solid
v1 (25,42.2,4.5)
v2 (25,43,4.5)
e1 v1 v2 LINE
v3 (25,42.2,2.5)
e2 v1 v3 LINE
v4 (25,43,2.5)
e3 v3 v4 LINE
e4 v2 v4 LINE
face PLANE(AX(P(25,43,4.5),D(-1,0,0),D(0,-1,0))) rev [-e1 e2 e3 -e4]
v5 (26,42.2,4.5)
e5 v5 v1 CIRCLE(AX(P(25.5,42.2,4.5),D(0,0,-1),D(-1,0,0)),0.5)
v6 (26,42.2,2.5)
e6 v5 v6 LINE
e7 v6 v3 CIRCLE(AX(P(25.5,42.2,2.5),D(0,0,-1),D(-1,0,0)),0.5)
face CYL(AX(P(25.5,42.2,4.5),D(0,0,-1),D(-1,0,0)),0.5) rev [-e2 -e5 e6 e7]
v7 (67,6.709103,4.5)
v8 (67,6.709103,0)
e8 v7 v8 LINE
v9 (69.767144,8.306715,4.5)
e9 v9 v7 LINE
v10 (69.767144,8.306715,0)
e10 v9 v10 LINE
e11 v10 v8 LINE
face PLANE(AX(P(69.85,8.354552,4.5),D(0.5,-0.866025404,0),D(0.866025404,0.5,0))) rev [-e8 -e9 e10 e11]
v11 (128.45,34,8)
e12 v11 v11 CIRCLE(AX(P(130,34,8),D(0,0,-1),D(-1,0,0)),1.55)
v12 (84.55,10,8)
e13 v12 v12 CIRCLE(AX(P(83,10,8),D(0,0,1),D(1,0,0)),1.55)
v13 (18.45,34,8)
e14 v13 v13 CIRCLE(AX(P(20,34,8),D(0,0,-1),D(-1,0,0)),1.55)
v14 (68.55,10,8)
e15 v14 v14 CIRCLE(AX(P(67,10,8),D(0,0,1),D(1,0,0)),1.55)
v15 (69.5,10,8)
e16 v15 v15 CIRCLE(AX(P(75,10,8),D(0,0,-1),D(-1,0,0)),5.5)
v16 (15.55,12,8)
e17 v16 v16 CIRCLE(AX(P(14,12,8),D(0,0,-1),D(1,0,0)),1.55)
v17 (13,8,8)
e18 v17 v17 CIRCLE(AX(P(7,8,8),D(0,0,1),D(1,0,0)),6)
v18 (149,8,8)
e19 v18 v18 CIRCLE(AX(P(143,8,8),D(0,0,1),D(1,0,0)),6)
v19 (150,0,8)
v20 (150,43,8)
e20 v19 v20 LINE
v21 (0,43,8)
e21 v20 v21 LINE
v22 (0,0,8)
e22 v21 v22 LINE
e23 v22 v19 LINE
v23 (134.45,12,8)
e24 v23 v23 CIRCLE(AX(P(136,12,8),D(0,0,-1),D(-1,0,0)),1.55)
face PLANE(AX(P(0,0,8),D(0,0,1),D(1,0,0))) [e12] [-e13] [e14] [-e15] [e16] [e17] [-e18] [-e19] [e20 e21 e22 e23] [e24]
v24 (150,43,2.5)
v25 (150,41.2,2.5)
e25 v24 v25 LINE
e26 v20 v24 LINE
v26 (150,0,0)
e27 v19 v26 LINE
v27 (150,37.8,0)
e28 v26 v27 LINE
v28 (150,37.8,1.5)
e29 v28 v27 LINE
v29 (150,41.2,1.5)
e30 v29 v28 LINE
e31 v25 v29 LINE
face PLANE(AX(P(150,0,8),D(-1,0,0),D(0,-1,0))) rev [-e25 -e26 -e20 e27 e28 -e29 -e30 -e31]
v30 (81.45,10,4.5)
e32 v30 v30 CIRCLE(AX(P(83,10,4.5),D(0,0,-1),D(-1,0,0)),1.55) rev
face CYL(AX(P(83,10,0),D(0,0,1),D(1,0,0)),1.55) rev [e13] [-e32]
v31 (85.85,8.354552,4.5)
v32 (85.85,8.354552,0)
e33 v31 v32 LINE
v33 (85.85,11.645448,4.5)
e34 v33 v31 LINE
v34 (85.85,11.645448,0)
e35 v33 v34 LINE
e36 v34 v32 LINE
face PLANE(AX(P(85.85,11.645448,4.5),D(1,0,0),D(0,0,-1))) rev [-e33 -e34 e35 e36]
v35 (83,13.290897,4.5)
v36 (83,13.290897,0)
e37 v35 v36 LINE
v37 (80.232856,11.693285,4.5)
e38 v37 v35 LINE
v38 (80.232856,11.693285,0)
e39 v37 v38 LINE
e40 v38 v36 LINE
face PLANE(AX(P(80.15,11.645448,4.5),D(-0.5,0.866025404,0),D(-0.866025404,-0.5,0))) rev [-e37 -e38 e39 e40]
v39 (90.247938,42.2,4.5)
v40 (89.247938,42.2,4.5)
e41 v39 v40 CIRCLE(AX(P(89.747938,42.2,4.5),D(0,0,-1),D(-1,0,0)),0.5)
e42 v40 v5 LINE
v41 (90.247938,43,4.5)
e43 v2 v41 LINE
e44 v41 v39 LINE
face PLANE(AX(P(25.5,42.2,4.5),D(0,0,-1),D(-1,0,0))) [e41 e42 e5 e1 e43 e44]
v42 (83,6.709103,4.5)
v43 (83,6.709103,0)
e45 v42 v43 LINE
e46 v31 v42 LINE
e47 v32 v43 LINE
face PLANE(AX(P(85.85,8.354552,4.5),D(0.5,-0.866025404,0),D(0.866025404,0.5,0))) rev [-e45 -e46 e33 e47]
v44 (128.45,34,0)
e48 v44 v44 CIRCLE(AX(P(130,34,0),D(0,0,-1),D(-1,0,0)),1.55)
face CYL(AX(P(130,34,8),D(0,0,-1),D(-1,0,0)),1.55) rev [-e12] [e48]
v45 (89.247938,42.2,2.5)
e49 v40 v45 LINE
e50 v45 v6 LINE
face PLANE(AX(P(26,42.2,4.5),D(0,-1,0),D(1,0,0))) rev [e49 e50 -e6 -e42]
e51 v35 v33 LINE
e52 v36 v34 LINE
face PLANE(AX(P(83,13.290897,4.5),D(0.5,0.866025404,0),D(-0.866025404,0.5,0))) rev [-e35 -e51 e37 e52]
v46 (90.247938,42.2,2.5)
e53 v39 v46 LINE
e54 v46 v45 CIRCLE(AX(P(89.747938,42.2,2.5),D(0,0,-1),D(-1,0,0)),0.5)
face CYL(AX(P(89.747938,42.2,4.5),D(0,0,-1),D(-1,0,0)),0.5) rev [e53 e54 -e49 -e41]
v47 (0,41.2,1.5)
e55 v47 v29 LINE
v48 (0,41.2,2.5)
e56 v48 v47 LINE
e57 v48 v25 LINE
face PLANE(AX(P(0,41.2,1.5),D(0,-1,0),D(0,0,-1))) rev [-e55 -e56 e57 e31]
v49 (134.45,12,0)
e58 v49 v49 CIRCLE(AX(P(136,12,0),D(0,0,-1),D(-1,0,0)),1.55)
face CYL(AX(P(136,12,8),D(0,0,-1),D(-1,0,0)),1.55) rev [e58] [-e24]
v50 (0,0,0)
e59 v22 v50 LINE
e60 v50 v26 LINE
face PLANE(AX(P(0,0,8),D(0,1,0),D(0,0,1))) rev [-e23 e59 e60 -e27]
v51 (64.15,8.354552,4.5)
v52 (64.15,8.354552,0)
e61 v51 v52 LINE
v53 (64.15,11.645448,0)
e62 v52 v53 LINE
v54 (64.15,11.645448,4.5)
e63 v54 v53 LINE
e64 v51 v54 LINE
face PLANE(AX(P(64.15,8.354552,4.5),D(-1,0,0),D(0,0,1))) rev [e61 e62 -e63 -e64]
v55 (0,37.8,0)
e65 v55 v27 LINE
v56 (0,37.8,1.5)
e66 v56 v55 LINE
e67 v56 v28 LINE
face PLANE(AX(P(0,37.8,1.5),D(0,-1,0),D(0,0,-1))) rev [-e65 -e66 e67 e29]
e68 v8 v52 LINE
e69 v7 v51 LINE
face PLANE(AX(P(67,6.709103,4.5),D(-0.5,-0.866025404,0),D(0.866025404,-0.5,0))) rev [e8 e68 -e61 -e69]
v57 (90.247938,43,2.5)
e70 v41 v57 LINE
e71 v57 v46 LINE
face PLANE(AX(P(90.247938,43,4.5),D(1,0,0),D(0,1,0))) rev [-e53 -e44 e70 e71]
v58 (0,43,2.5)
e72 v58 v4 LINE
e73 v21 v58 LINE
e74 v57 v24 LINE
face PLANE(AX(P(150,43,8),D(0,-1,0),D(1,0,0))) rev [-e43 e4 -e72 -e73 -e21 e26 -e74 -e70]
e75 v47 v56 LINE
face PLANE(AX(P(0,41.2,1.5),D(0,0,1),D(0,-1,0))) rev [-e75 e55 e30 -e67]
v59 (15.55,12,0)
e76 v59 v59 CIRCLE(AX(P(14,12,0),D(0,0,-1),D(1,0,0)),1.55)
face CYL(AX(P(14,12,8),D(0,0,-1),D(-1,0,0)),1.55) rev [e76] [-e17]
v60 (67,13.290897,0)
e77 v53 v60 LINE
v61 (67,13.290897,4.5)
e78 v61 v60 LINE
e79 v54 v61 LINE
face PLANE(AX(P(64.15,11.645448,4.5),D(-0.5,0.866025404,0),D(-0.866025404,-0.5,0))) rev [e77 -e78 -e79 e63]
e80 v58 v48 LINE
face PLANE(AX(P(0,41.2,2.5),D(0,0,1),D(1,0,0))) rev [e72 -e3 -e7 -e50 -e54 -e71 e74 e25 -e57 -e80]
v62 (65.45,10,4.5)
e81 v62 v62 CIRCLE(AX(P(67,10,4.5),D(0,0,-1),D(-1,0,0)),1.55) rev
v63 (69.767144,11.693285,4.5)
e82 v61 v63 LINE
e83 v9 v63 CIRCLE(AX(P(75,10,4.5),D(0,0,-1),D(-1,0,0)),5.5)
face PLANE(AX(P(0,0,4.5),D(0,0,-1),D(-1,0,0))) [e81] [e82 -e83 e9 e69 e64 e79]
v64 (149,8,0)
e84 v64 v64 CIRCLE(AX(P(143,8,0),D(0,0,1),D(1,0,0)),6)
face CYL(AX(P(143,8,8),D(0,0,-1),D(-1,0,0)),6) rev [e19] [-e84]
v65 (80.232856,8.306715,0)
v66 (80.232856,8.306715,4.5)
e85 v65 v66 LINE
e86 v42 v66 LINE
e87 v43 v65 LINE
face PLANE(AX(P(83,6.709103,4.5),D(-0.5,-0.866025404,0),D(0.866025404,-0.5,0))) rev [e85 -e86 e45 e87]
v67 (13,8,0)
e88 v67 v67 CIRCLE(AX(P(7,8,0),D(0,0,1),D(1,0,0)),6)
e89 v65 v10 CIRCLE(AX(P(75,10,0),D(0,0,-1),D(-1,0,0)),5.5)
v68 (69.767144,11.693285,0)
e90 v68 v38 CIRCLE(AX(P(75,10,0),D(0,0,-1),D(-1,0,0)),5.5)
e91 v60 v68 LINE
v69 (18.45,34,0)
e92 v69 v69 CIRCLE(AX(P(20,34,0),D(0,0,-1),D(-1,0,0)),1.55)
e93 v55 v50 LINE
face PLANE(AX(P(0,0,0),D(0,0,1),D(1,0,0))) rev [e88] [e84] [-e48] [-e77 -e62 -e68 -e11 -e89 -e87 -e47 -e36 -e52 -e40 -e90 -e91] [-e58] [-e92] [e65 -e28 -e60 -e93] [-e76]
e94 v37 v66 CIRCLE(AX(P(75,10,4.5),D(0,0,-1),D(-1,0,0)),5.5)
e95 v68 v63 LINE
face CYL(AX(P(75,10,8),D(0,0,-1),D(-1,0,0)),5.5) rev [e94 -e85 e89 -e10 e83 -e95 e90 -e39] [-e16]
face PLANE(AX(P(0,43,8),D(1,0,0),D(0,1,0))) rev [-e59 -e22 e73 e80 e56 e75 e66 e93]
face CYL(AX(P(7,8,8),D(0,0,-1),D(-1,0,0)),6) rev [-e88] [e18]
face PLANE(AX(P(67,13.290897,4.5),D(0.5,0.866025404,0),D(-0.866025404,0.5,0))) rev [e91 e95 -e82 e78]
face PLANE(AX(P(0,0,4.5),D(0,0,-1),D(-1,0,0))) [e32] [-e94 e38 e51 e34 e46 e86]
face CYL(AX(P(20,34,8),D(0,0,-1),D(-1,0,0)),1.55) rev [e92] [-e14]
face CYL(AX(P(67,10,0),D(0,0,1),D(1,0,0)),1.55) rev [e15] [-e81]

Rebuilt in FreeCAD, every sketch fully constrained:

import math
import FreeCAD as App
import Part
import Sketcher
from FreeCAD import Vector
Q = App.Units.Quantity

doc = App.newDocument("Part")
params = doc.addObject("Spreadsheet::Sheet", "Params")
for row, (alias, value) in enumerate([
    ("sketch1_diameter", "12 mm"),
    ("sketch1_diameter2", "8.1 mm"),
    ("sketch1_width", "150 mm"),
    ("sketch1_height", "43 mm"),
    ("pad1_length", "8 mm"),
    ("sketch2_height", "1 mm"),
    ("sketch2_width", "3.4 mm"),
    ("sketch2_width2", "5.2 mm"),
    ("sketch2_height2", "1.5 mm"),
    ("sketch3_diameter", "3.1 mm"),
    ("pocket3_length", "4.5 mm"),
    ("sketch5_diameter", "3.1 mm"),
    ("sketch6_radius", "0.5 mm"),
    ("sketch6_height", "0.8 mm"),
    ("pocket5_length", "2 mm"),
    ("sketch7_diameter", "3.1 mm"),
    ("sketch8_diameter", "11 mm"),
], start=1):
    params.set(f"A{row}", alias)
    params.set(f"B{row}", "=" + value)
    params.setAlias(f"B{row}", alias)

body = doc.addObject("PartDesign::Body", "Body")

# Sketch on XY plane
sketch1 = body.newObject("Sketcher::SketchObject", "Sketch")
sketch1.AttachmentSupport = (doc.getObject("XY_Plane"), [""])
sketch1.MapMode = "FlatFace"
sketch1.addGeometry(Part.LineSegment(Vector(0, 43, 0), Vector(0, 0, 0)), False)
sketch1.addGeometry(Part.LineSegment(Vector(0, 0, 0), Vector(150, 0, 0)), False)
sketch1.addGeometry(Part.LineSegment(Vector(150, 0, 0), Vector(150, 43, 0)), False)
sketch1.addGeometry(Part.LineSegment(Vector(150, 43, 0), Vector(0, 43, 0)), False)
sketch1.addGeometry(Part.Circle(Vector(7, 8, 0), Vector(0, 0, 1), 6), False)
sketch1.addGeometry(Part.Circle(Vector(143, 8, 0), Vector(0, 0, 1), 6), False)
sketch1.addGeometry(Part.Circle(Vector(75, 10, 0), Vector(0, 0, 1), 4), False)
sketch1.addConstraint(Sketcher.Constraint("Coincident", 0, 2, 1, 1))
sketch1.addConstraint(Sketcher.Constraint("Coincident", 1, 2, 2, 1))
sketch1.addConstraint(Sketcher.Constraint("Coincident", 2, 2, 3, 1))
sketch1.addConstraint(Sketcher.Constraint("Coincident", 3, 2, 0, 1))
sketch1.addConstraint(Sketcher.Constraint("Vertical", 0))
sketch1.addConstraint(Sketcher.Constraint("Horizontal", 1))
sketch1.addConstraint(Sketcher.Constraint("Vertical", 2))
sketch1.addConstraint(Sketcher.Constraint("Horizontal", 3))
sketch1.addConstraint(Sketcher.Constraint("Coincident", 0, 2, -1, 1))
sketch1.addConstraint(Sketcher.Constraint("Equal", 4, 5))
sketch1.addConstraint(Sketcher.Constraint("Horizontal", 4, 3, 5, 3))
sketch1.addConstraint(Sketcher.Constraint("Diameter", 4, Q("12 mm")))
sketch1.addConstraint(Sketcher.Constraint("Diameter", 6, Q("8.1 mm")))
sketch1.addConstraint(Sketcher.Constraint("DistanceX", 1, 1, 1, 2, Q("150 mm")))
sketch1.addConstraint(Sketcher.Constraint("DistanceY", 0, 2, 0, 1, Q("43 mm")))
sketch1.addConstraint(Sketcher.Constraint("DistanceX", -1, 1, 4, 3, Q("7 mm")))
sketch1.addConstraint(Sketcher.Constraint("DistanceY", -1, 1, 4, 3, Q("8 mm")))
sketch1.addConstraint(Sketcher.Constraint("DistanceX", -1, 1, 5, 3, Q("143 mm")))
sketch1.addConstraint(Sketcher.Constraint("DistanceX", -1, 1, 6, 3, Q("75 mm")))
sketch1.addConstraint(Sketcher.Constraint("DistanceY", -1, 1, 6, 3, Q("10 mm")))
sketch1.setExpression("Constraints[11]", "Params.sketch1_diameter")
sketch1.setExpression("Constraints[12]", "Params.sketch1_diameter2")
sketch1.setExpression("Constraints[13]", "Params.sketch1_width")
sketch1.setExpression("Constraints[14]", "Params.sketch1_height")
pad1 = body.newObject("PartDesign::Pad", "Pad")
pad1.Profile = sketch1
pad1.setExpression("Length", "Params.pad1_length")

# Sketch on YZ plane
sketch2 = body.newObject("Sketcher::SketchObject", "Sketch001")
sketch2.AttachmentSupport = (doc.getObject("YZ_Plane"), [""])
sketch2.MapMode = "FlatFace"
sketch2.AttachmentOffset = App.Placement(Vector(0, 0, 150), App.Rotation())
sketch2.addGeometry(Part.LineSegment(Vector(41.2, 2.5, 0), Vector(41.2, 1.5, 0)), False)
sketch2.addGeometry(Part.LineSegment(Vector(41.2, 1.5, 0), Vector(37.8, 1.5, 0)), False)
sketch2.addGeometry(Part.LineSegment(Vector(37.8, 1.5, 0), Vector(37.8, 0, 0)), False)
sketch2.addGeometry(Part.LineSegment(Vector(37.8, 0, 0), Vector(43, 0, 0)), False)
sketch2.addGeometry(Part.LineSegment(Vector(43, 0, 0), Vector(43, 2.5, 0)), False)
sketch2.addGeometry(Part.LineSegment(Vector(43, 2.5, 0), Vector(41.2, 2.5, 0)), False)
sketch2.addConstraint(Sketcher.Constraint("Coincident", 0, 2, 1, 1))
sketch2.addConstraint(Sketcher.Constraint("Coincident", 1, 2, 2, 1))
sketch2.addConstraint(Sketcher.Constraint("Coincident", 2, 2, 3, 1))
sketch2.addConstraint(Sketcher.Constraint("Coincident", 3, 2, 4, 1))
sketch2.addConstraint(Sketcher.Constraint("Coincident", 4, 2, 5, 1))
sketch2.addConstraint(Sketcher.Constraint("Coincident", 5, 2, 0, 1))
sketch2.addConstraint(Sketcher.Constraint("Vertical", 0))
sketch2.addConstraint(Sketcher.Constraint("Horizontal", 1))
sketch2.addConstraint(Sketcher.Constraint("Vertical", 2))
sketch2.addConstraint(Sketcher.Constraint("Horizontal", 3))
sketch2.addConstraint(Sketcher.Constraint("Vertical", 4))
sketch2.addConstraint(Sketcher.Constraint("Horizontal", 5))
sketch2.addConstraint(Sketcher.Constraint("PointOnObject", 2, 2, -1))
sketch2.addConstraint(Sketcher.Constraint("DistanceY", 0, 2, 0, 1, Q("1 mm")))
sketch2.addConstraint(Sketcher.Constraint("DistanceX", 1, 2, 1, 1, Q("3.4 mm")))
sketch2.addConstraint(Sketcher.Constraint("DistanceX", 3, 1, 3, 2, Q("5.2 mm")))
sketch2.addConstraint(Sketcher.Constraint("DistanceY", 2, 2, 2, 1, Q("1.5 mm")))
sketch2.addConstraint(Sketcher.Constraint("DistanceX", -1, 1, 3, 2, Q("43 mm")))
sketch2.setExpression("Constraints[13]", "Params.sketch2_height")
sketch2.setExpression("Constraints[14]", "Params.sketch2_width")
sketch2.setExpression("Constraints[15]", "Params.sketch2_width2")
sketch2.setExpression("Constraints[16]", "Params.sketch2_height2")
pocket1 = body.newObject("PartDesign::Pocket", "Pocket")
pocket1.Profile = sketch2
pocket1.Type = "ThroughAll"

# Sketch on XY plane
sketch3 = body.newObject("Sketcher::SketchObject", "Sketch002")
sketch3.AttachmentSupport = (doc.getObject("XY_Plane"), [""])
sketch3.MapMode = "FlatFace"
sketch3.AttachmentOffset = App.Placement(Vector(0, 0, 8), App.Rotation())
sketch3.addGeometry(Part.Circle(Vector(83, 10, 0), Vector(0, 0, 1), 1.6), False)
sketch3.addGeometry(Part.Circle(Vector(67, 10, 0), Vector(0, 0, 1), 1.6), False)
sketch3.addConstraint(Sketcher.Constraint("Equal", 0, 1))
sketch3.addConstraint(Sketcher.Constraint("Horizontal", 0, 3, 1, 3))
sketch3.addConstraint(Sketcher.Constraint("Diameter", 0, Q("3.1 mm")))
sketch3.addConstraint(Sketcher.Constraint("DistanceX", -1, 1, 0, 3, Q("83 mm")))
sketch3.addConstraint(Sketcher.Constraint("DistanceY", -1, 1, 0, 3, Q("10 mm")))
sketch3.addConstraint(Sketcher.Constraint("DistanceX", -1, 1, 1, 3, Q("67 mm")))
sketch3.setExpression("Constraints[2]", "Params.sketch3_diameter")
pocket2 = body.newObject("PartDesign::Pocket", "Pocket001")
pocket2.Profile = sketch3
pocket2.Type = "ThroughAll"

# Sketch on XY plane
sketch4 = body.newObject("Sketcher::SketchObject", "Sketch003")
sketch4.AttachmentSupport = (doc.getObject("XY_Plane"), [""])
sketch4.MapMode = "FlatFace"
sketch4.addGeometry(Part.LineSegment(Vector(80.2, 8.4, 0), Vector(80.2, 11.6, 0)), False)
sketch4.addGeometry(Part.LineSegment(Vector(80.2, 11.6, 0), Vector(83, 13.3, 0)), False)
sketch4.addGeometry(Part.LineSegment(Vector(83, 13.3, 0), Vector(85.8, 11.6, 0)), False)
sketch4.addGeometry(Part.LineSegment(Vector(85.8, 11.6, 0), Vector(85.8, 8.4, 0)), False)
sketch4.addGeometry(Part.LineSegment(Vector(85.8, 8.4, 0), Vector(83, 6.7, 0)), False)
sketch4.addGeometry(Part.LineSegment(Vector(83, 6.7, 0), Vector(80.2, 8.4, 0)), False)
sketch4.addGeometry(Part.LineSegment(Vector(69.8, 8.4, 0), Vector(67, 6.7, 0)), False)
sketch4.addGeometry(Part.LineSegment(Vector(67, 6.7, 0), Vector(64.2, 8.4, 0)), False)
sketch4.addGeometry(Part.LineSegment(Vector(64.2, 8.4, 0), Vector(64.2, 11.6, 0)), False)
sketch4.addGeometry(Part.LineSegment(Vector(64.2, 11.6, 0), Vector(67, 13.3, 0)), False)
sketch4.addGeometry(Part.LineSegment(Vector(67, 13.3, 0), Vector(69.8, 11.6, 0)), False)
sketch4.addGeometry(Part.LineSegment(Vector(69.8, 11.6, 0), Vector(69.8, 8.4, 0)), False)
sketch4.addConstraint(Sketcher.Constraint("Coincident", 0, 2, 1, 1))
sketch4.addConstraint(Sketcher.Constraint("Coincident", 1, 2, 2, 1))
sketch4.addConstraint(Sketcher.Constraint("Coincident", 2, 2, 3, 1))
sketch4.addConstraint(Sketcher.Constraint("Coincident", 3, 2, 4, 1))
sketch4.addConstraint(Sketcher.Constraint("Coincident", 4, 2, 5, 1))
sketch4.addConstraint(Sketcher.Constraint("Coincident", 5, 2, 0, 1))
sketch4.addConstraint(Sketcher.Constraint("Coincident", 6, 2, 7, 1))
sketch4.addConstraint(Sketcher.Constraint("Coincident", 7, 2, 8, 1))
sketch4.addConstraint(Sketcher.Constraint("Coincident", 8, 2, 9, 1))
sketch4.addConstraint(Sketcher.Constraint("Coincident", 9, 2, 10, 1))
sketch4.addConstraint(Sketcher.Constraint("Coincident", 10, 2, 11, 1))
sketch4.addConstraint(Sketcher.Constraint("Coincident", 11, 2, 6, 1))
sketch4.addConstraint(Sketcher.Constraint("Vertical", 0))
sketch4.addConstraint(Sketcher.Constraint("Vertical", 3))
sketch4.addConstraint(Sketcher.Constraint("Vertical", 8))
sketch4.addConstraint(Sketcher.Constraint("Vertical", 11))
sketch4.addConstraint(Sketcher.Constraint("Parallel", 1, 4))
sketch4.addConstraint(Sketcher.Constraint("Parallel", 2, 5))
sketch4.addConstraint(Sketcher.Constraint("Parallel", 4, 6))
sketch4.addConstraint(Sketcher.Constraint("Parallel", 5, 7))
sketch4.addConstraint(Sketcher.Constraint("Parallel", 6, 9))
sketch4.addConstraint(Sketcher.Constraint("Parallel", 7, 10))
sketch4.addConstraint(Sketcher.Constraint("Horizontal", 0, 2, 2, 2))
sketch4.addConstraint(Sketcher.Constraint("Horizontal", 3, 2, 5, 2))
sketch4.addConstraint(Sketcher.Constraint("Horizontal", 4, 2, 6, 2))
sketch4.addConstraint(Sketcher.Constraint("Horizontal", 5, 2, 7, 2))
sketch4.addConstraint(Sketcher.Constraint("Horizontal", 2, 2, 8, 2))
sketch4.addConstraint(Sketcher.Constraint("Horizontal", 1, 2, 9, 2))
sketch4.addConstraint(Sketcher.Constraint("Horizontal", 8, 2, 10, 2))
sketch4.addConstraint(Sketcher.Constraint("Vertical", 1, 2, 4, 2))
sketch4.addConstraint(Sketcher.Constraint("Angle", 1, Q("30 deg")))
sketch4.addConstraint(Sketcher.Constraint("DistanceX", -1, 1, 1, 2, Q("83 mm")))
sketch4.addConstraint(Sketcher.Constraint("DistanceX", -1, 1, 6, 2, Q("67 mm")))
sketch4.addConstraint(Sketcher.Constraint("DistanceX", 0, 2, 2, 2, Q("5.7 mm")))
sketch4.addConstraint(Sketcher.Constraint("DistanceY", 0, 1, 0, 2, Q("3.290897 mm")))
sketch4.addConstraint(Sketcher.Constraint("DistanceY", -1, 1, 0, 2, Q("11.645448 mm")))
pocket3 = body.newObject("PartDesign::Pocket", "Pocket002")
pocket3.Profile = sketch4
pocket3.setExpression("Length", "Params.pocket3_length")
pocket3.Reversed = True

# Sketch on XY plane
sketch5 = body.newObject("Sketcher::SketchObject", "Sketch004")
sketch5.AttachmentSupport = (doc.getObject("XY_Plane"), [""])
sketch5.MapMode = "FlatFace"
sketch5.addGeometry(Part.Circle(Vector(130, 34, 0), Vector(0, 0, 1), 1.6), False)
sketch5.addGeometry(Part.Circle(Vector(20, 34, 0), Vector(0, 0, 1), 1.6), False)
sketch5.addConstraint(Sketcher.Constraint("Equal", 0, 1))
sketch5.addConstraint(Sketcher.Constraint("Horizontal", 0, 3, 1, 3))
sketch5.addConstraint(Sketcher.Constraint("Diameter", 0, Q("3.1 mm")))
sketch5.addConstraint(Sketcher.Constraint("DistanceX", -1, 1, 0, 3, Q("130 mm")))
sketch5.addConstraint(Sketcher.Constraint("DistanceY", -1, 1, 0, 3, Q("34 mm")))
sketch5.addConstraint(Sketcher.Constraint("DistanceX", -1, 1, 1, 3, Q("20 mm")))
sketch5.setExpression("Constraints[2]", "Params.sketch5_diameter")
pocket4 = body.newObject("PartDesign::Pocket", "Pocket003")
pocket4.Profile = sketch5
pocket4.Type = "ThroughAll"
pocket4.Reversed = True

# Sketch on XY plane
sketch6 = body.newObject("Sketcher::SketchObject", "Sketch005")
sketch6.AttachmentSupport = (doc.getObject("XY_Plane"), [""])
sketch6.MapMode = "FlatFace"
sketch6.AttachmentOffset = App.Placement(Vector(0, 0, 2.5), App.Rotation())
sketch6.addGeometry(Part.LineSegment(Vector(25, 43, 0), Vector(90.2, 43, 0)), False)
sketch6.addGeometry(Part.LineSegment(Vector(90.2, 43, 0), Vector(90.2, 42.2, 0)), False)
sketch6.addGeometry(Part.ArcOfCircle(Part.Circle(Vector(89.7, 42.2, 0), Vector(0, 0, 1), 0.5), math.radians(180), math.radians(360)), False)
sketch6.addGeometry(Part.LineSegment(Vector(89.2, 42.2, 0), Vector(26, 42.2, 0)), False)
sketch6.addGeometry(Part.ArcOfCircle(Part.Circle(Vector(25.5, 42.2, 0), Vector(0, 0, 1), 0.5), math.radians(180), math.radians(360)), False)
sketch6.addGeometry(Part.LineSegment(Vector(25, 42.2, 0), Vector(25, 43, 0)), False)
sketch6.addConstraint(Sketcher.Constraint("Coincident", 0, 2, 1, 1))
sketch6.addConstraint(Sketcher.Constraint("Tangent", 1, 2, 2, 2))
sketch6.addConstraint(Sketcher.Constraint("Coincident", 2, 1, 3, 1))
sketch6.addConstraint(Sketcher.Constraint("Coincident", 3, 2, 4, 2))
sketch6.addConstraint(Sketcher.Constraint("Tangent", 4, 1, 5, 1))
sketch6.addConstraint(Sketcher.Constraint("Coincident", 5, 2, 0, 1))
sketch6.addConstraint(Sketcher.Constraint("Horizontal", 0))
sketch6.addConstraint(Sketcher.Constraint("Vertical", 1))
sketch6.addConstraint(Sketcher.Constraint("Horizontal", 3))
sketch6.addConstraint(Sketcher.Constraint("Vertical", 5))
sketch6.addConstraint(Sketcher.Constraint("Equal", 2, 4))
sketch6.addConstraint(Sketcher.Constraint("Horizontal", 2, 3, 4, 3))
sketch6.addConstraint(Sketcher.Constraint("Horizontal", 1, 2, 2, 1))
sketch6.addConstraint(Sketcher.Constraint("Radius", 2, Q("0.5 mm")))
sketch6.addConstraint(Sketcher.Constraint("DistanceY", 1, 2, 1, 1, Q("0.8 mm")))
sketch6.addConstraint(Sketcher.Constraint("DistanceY", -1, 1, 0, 2, Q("43 mm")))
sketch6.addConstraint(Sketcher.Constraint("DistanceX", -1, 1, 3, 2, Q("26 mm")))
sketch6.addConstraint(Sketcher.Constraint("DistanceX", 0, 1, 0, 2, Q("65.247938 mm")))
sketch6.setExpression("Constraints[13]", "Params.sketch6_radius")
sketch6.setExpression("Constraints[14]", "Params.sketch6_height")
pocket5 = body.newObject("PartDesign::Pocket", "Pocket004")
pocket5.Profile = sketch6
pocket5.setExpression("Length", "Params.pocket5_length")
pocket5.Reversed = True

# Sketch on XY plane
sketch7 = body.newObject("Sketcher::SketchObject", "Sketch006")
sketch7.AttachmentSupport = (doc.getObject("XY_Plane"), [""])
sketch7.MapMode = "FlatFace"
sketch7.addGeometry(Part.Circle(Vector(136, 12, 0), Vector(0, 0, 1), 1.6), False)
sketch7.addGeometry(Part.Circle(Vector(14, 12, 0), Vector(0, 0, 1), 1.6), False)
sketch7.addConstraint(Sketcher.Constraint("Equal", 0, 1))
sketch7.addConstraint(Sketcher.Constraint("Horizontal", 0, 3, 1, 3))
sketch7.addConstraint(Sketcher.Constraint("Diameter", 0, Q("3.1 mm")))
sketch7.addConstraint(Sketcher.Constraint("DistanceX", -1, 1, 0, 3, Q("136 mm")))
sketch7.addConstraint(Sketcher.Constraint("DistanceY", -1, 1, 0, 3, Q("12 mm")))
sketch7.addConstraint(Sketcher.Constraint("DistanceX", -1, 1, 1, 3, Q("14 mm")))
sketch7.setExpression("Constraints[2]", "Params.sketch7_diameter")
pocket6 = body.newObject("PartDesign::Pocket", "Pocket005")
pocket6.Profile = sketch7
pocket6.Type = "ThroughAll"
pocket6.Reversed = True

# Sketch on XY plane
sketch8 = body.newObject("Sketcher::SketchObject", "Sketch007")
sketch8.AttachmentSupport = (doc.getObject("XY_Plane"), [""])
sketch8.MapMode = "FlatFace"
sketch8.addGeometry(Part.Circle(Vector(75, 10, 0), Vector(0, 0, 1), 6), False)
sketch8.addConstraint(Sketcher.Constraint("Diameter", 0, Q("11 mm")))
sketch8.addConstraint(Sketcher.Constraint("DistanceX", -1, 1, 0, 3, Q("75 mm")))
sketch8.addConstraint(Sketcher.Constraint("DistanceY", -1, 1, 0, 3, Q("10 mm")))
sketch8.setExpression("Constraints[0]", "Params.sketch8_diameter")
pocket7 = body.newObject("PartDesign::Pocket", "Pocket006")
pocket7.Profile = sketch8
pocket7.Type = "ThroughAll"
pocket7.Reversed = True

doc.recompute()
